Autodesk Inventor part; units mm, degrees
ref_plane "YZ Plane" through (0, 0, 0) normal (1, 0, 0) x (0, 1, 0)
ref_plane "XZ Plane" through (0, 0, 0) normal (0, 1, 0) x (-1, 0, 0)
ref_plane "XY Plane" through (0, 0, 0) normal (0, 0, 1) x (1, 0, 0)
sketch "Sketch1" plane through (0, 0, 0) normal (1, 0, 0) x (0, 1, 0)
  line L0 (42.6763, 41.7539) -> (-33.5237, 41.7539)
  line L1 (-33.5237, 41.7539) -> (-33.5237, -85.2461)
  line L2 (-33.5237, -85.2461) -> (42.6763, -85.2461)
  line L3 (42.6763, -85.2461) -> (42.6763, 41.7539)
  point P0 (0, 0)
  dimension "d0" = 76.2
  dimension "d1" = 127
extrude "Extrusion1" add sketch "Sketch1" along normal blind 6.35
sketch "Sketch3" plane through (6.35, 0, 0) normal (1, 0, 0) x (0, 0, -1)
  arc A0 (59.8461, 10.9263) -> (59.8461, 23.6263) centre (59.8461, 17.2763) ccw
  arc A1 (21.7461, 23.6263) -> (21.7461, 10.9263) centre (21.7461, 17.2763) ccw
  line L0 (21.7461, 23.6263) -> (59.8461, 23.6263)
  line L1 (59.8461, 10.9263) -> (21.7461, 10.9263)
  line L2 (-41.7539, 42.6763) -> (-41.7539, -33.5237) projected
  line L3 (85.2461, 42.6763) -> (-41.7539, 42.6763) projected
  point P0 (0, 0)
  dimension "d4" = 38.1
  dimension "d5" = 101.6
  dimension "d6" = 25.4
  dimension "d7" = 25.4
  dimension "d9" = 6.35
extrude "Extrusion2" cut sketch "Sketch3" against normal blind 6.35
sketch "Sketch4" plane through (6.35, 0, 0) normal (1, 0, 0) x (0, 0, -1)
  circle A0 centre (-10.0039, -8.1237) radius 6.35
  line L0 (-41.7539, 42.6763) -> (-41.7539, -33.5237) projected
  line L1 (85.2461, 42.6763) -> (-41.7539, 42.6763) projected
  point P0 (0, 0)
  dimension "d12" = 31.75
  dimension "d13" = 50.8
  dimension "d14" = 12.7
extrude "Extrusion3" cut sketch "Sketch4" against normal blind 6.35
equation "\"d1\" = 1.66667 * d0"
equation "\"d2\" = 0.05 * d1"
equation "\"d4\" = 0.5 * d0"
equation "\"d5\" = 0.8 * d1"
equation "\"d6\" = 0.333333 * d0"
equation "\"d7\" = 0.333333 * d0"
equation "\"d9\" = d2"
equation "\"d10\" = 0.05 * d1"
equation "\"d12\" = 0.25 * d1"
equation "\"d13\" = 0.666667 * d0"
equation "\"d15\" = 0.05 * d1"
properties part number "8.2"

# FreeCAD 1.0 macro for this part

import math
import FreeCAD as App
import Part
import Sketcher
Q = App.Units.Quantity

doc = App.newDocument("Part")
params = doc.addObject("Spreadsheet::Sheet", "Params")
for row, (alias, value) in enumerate([
    ("sketch1_width", "3 in"),
    ("sketch1_height", "5 in"),
    ("pad1_length", "0.25 in"),
    ("sketch2_radius", "0.25 in"),
    ("sketch2_height", "1.5 in"),
    ("pocket1_length", "0.25 in"),
    ("sketch3_diameter", "0.5 in"),
    ("pocket2_length", "0.25 in"),
], start=1):
    params.set(f"A{row}", alias)
    params.set(f"B{row}", "=" + value)
    params.setAlias(f"B{row}", alias)

body = doc.addObject("PartDesign::Body", "Body")

# Sketch on YZ plane
sketch1 = doc.addObject("Sketcher::SketchObject", "Sketch")
body.addObject(sketch1)
sketch1.AttachmentSupport = (doc.YZ_Plane, [""])
sketch1.MapMode = "FlatFace"
sketch1.addGeometry([
    Part.LineSegment(App.Vector(43, -85, 0), App.Vector(43, 42, 0)),
    Part.LineSegment(App.Vector(43, 42, 0), App.Vector(-34, 42, 0)),
    Part.LineSegment(App.Vector(-34, 42, 0), App.Vector(-34, -85, 0)),
    Part.LineSegment(App.Vector(-34, -85, 0), App.Vector(43, -85, 0)),
], False)
sketch1.addConstraint([
    Sketcher.Constraint("Coincident", 0, 2, 1, 1),
    Sketcher.Constraint("Coincident", 1, 2, 2, 1),
    Sketcher.Constraint("Coincident", 2, 2, 3, 1),
    Sketcher.Constraint("Coincident", 3, 2, 0, 1),
    Sketcher.Constraint("Vertical", 0),
    Sketcher.Constraint("Horizontal", 1),
    Sketcher.Constraint("Vertical", 2),
    Sketcher.Constraint("Horizontal", 3),
    Sketcher.Constraint("DistanceX", 1, 2, 1, 1, Q("3 in")),
    Sketcher.Constraint("DistanceY", 0, 1, 0, 2, Q("5 in")),
    Sketcher.Constraint("DistanceX", -1, 1, 0, 2, 42.6763),
    Sketcher.Constraint("DistanceY", -1, 1, 0, 2, 41.754),
])
sketch1.setExpression("Constraints[8]", "Params.sketch1_width")
sketch1.setExpression("Constraints[9]", "Params.sketch1_height")
pad1 = doc.addObject("PartDesign::Pad", "Pad")
body.addObject(pad1)
pad1.Profile = sketch1
pad1.setExpression("Length", "Params.pad1_length")

# Sketch on YZ plane
sketch2 = doc.addObject("Sketcher::SketchObject", "Sketch001")
body.addObject(sketch2)
sketch2.AttachmentSupport = (doc.YZ_Plane, [""])
sketch2.MapMode = "FlatFace"
sketch2.AttachmentOffset = App.Placement(App.Vector(0, 0, 0.25 * 25.4), App.Rotation())
sketch2.addGeometry([
    Part.LineSegment(App.Vector(11, -22, 0), App.Vector(11, -60, 0)),
    Part.ArcOfCircle(Part.Circle(App.Vector(17, -60, 0), App.Vector(0, 0, 1), 6), math.radians(180), math.radians(360)),
    Part.LineSegment(App.Vector(24, -60, 0), App.Vector(24, -22, 0)),
    Part.ArcOfCircle(Part.Circle(App.Vector(17, -22, 0), App.Vector(0, 0, 1), 6), math.radians(0), math.radians(180)),
], False)
sketch2.addConstraint([
    Sketcher.Constraint("Tangent", 0, 2, 1, 1),
    Sketcher.Constraint("Tangent", 1, 2, 2, 1),
    Sketcher.Constraint("Tangent", 2, 2, 3, 1),
    Sketcher.Constraint("Tangent", 3, 2, 0, 1),
    Sketcher.Constraint("Vertical", 0),
    Sketcher.Constraint("Vertical", 2),
    Sketcher.Constraint("Radius", 1, Q("0.25 in")),
    Sketcher.Constraint("DistanceY", 0, 2, 0, 1, Q("1.5 in")),
    Sketcher.Constraint("DistanceX", -1, 1, 1, 3, 17.2763),
    Sketcher.Constraint("DistanceY", 1, 3, -1, 1, 59.846),
])
sketch2.setExpression("Constraints[6]", "Params.sketch2_radius")
sketch2.setExpression("Constraints[7]", "Params.sketch2_height")
pocket1 = doc.addObject("PartDesign::Pocket", "Pocket")
body.addObject(pocket1)
pocket1.Profile = sketch2
pocket1.setExpression("Length", "Params.pocket1_length")

# Sketch on YZ plane
sketch3 = doc.addObject("Sketcher::SketchObject", "Sketch002")
body.addObject(sketch3)
sketch3.AttachmentSupport = (doc.YZ_Plane, [""])
sketch3.MapMode = "FlatFace"
sketch3.AttachmentOffset = App.Placement(App.Vector(0, 0, 0.25 * 25.4), App.Rotation())
sketch3.addGeometry(Part.Circle(App.Vector(-8, 10, 0), App.Vector(0, 0, 1), 6), False)
sketch3.addConstraint([
    Sketcher.Constraint("Diameter", 0, Q("0.5 in")),
    Sketcher.Constraint("DistanceX", 0, 3, -1, 1, 8.1237),
    Sketcher.Constraint("DistanceY", -1, 1, 0, 3, 10.004),
])
sketch3.setExpression("Constraints[0]", "Params.sketch3_diameter")
pocket2 = doc.addObject("PartDesign::Pocket", "Pocket001")
body.addObject(pocket2)
pocket2.Profile = sketch3
pocket2.setExpression("Length", "Params.pocket2_length")

doc.recompute()
